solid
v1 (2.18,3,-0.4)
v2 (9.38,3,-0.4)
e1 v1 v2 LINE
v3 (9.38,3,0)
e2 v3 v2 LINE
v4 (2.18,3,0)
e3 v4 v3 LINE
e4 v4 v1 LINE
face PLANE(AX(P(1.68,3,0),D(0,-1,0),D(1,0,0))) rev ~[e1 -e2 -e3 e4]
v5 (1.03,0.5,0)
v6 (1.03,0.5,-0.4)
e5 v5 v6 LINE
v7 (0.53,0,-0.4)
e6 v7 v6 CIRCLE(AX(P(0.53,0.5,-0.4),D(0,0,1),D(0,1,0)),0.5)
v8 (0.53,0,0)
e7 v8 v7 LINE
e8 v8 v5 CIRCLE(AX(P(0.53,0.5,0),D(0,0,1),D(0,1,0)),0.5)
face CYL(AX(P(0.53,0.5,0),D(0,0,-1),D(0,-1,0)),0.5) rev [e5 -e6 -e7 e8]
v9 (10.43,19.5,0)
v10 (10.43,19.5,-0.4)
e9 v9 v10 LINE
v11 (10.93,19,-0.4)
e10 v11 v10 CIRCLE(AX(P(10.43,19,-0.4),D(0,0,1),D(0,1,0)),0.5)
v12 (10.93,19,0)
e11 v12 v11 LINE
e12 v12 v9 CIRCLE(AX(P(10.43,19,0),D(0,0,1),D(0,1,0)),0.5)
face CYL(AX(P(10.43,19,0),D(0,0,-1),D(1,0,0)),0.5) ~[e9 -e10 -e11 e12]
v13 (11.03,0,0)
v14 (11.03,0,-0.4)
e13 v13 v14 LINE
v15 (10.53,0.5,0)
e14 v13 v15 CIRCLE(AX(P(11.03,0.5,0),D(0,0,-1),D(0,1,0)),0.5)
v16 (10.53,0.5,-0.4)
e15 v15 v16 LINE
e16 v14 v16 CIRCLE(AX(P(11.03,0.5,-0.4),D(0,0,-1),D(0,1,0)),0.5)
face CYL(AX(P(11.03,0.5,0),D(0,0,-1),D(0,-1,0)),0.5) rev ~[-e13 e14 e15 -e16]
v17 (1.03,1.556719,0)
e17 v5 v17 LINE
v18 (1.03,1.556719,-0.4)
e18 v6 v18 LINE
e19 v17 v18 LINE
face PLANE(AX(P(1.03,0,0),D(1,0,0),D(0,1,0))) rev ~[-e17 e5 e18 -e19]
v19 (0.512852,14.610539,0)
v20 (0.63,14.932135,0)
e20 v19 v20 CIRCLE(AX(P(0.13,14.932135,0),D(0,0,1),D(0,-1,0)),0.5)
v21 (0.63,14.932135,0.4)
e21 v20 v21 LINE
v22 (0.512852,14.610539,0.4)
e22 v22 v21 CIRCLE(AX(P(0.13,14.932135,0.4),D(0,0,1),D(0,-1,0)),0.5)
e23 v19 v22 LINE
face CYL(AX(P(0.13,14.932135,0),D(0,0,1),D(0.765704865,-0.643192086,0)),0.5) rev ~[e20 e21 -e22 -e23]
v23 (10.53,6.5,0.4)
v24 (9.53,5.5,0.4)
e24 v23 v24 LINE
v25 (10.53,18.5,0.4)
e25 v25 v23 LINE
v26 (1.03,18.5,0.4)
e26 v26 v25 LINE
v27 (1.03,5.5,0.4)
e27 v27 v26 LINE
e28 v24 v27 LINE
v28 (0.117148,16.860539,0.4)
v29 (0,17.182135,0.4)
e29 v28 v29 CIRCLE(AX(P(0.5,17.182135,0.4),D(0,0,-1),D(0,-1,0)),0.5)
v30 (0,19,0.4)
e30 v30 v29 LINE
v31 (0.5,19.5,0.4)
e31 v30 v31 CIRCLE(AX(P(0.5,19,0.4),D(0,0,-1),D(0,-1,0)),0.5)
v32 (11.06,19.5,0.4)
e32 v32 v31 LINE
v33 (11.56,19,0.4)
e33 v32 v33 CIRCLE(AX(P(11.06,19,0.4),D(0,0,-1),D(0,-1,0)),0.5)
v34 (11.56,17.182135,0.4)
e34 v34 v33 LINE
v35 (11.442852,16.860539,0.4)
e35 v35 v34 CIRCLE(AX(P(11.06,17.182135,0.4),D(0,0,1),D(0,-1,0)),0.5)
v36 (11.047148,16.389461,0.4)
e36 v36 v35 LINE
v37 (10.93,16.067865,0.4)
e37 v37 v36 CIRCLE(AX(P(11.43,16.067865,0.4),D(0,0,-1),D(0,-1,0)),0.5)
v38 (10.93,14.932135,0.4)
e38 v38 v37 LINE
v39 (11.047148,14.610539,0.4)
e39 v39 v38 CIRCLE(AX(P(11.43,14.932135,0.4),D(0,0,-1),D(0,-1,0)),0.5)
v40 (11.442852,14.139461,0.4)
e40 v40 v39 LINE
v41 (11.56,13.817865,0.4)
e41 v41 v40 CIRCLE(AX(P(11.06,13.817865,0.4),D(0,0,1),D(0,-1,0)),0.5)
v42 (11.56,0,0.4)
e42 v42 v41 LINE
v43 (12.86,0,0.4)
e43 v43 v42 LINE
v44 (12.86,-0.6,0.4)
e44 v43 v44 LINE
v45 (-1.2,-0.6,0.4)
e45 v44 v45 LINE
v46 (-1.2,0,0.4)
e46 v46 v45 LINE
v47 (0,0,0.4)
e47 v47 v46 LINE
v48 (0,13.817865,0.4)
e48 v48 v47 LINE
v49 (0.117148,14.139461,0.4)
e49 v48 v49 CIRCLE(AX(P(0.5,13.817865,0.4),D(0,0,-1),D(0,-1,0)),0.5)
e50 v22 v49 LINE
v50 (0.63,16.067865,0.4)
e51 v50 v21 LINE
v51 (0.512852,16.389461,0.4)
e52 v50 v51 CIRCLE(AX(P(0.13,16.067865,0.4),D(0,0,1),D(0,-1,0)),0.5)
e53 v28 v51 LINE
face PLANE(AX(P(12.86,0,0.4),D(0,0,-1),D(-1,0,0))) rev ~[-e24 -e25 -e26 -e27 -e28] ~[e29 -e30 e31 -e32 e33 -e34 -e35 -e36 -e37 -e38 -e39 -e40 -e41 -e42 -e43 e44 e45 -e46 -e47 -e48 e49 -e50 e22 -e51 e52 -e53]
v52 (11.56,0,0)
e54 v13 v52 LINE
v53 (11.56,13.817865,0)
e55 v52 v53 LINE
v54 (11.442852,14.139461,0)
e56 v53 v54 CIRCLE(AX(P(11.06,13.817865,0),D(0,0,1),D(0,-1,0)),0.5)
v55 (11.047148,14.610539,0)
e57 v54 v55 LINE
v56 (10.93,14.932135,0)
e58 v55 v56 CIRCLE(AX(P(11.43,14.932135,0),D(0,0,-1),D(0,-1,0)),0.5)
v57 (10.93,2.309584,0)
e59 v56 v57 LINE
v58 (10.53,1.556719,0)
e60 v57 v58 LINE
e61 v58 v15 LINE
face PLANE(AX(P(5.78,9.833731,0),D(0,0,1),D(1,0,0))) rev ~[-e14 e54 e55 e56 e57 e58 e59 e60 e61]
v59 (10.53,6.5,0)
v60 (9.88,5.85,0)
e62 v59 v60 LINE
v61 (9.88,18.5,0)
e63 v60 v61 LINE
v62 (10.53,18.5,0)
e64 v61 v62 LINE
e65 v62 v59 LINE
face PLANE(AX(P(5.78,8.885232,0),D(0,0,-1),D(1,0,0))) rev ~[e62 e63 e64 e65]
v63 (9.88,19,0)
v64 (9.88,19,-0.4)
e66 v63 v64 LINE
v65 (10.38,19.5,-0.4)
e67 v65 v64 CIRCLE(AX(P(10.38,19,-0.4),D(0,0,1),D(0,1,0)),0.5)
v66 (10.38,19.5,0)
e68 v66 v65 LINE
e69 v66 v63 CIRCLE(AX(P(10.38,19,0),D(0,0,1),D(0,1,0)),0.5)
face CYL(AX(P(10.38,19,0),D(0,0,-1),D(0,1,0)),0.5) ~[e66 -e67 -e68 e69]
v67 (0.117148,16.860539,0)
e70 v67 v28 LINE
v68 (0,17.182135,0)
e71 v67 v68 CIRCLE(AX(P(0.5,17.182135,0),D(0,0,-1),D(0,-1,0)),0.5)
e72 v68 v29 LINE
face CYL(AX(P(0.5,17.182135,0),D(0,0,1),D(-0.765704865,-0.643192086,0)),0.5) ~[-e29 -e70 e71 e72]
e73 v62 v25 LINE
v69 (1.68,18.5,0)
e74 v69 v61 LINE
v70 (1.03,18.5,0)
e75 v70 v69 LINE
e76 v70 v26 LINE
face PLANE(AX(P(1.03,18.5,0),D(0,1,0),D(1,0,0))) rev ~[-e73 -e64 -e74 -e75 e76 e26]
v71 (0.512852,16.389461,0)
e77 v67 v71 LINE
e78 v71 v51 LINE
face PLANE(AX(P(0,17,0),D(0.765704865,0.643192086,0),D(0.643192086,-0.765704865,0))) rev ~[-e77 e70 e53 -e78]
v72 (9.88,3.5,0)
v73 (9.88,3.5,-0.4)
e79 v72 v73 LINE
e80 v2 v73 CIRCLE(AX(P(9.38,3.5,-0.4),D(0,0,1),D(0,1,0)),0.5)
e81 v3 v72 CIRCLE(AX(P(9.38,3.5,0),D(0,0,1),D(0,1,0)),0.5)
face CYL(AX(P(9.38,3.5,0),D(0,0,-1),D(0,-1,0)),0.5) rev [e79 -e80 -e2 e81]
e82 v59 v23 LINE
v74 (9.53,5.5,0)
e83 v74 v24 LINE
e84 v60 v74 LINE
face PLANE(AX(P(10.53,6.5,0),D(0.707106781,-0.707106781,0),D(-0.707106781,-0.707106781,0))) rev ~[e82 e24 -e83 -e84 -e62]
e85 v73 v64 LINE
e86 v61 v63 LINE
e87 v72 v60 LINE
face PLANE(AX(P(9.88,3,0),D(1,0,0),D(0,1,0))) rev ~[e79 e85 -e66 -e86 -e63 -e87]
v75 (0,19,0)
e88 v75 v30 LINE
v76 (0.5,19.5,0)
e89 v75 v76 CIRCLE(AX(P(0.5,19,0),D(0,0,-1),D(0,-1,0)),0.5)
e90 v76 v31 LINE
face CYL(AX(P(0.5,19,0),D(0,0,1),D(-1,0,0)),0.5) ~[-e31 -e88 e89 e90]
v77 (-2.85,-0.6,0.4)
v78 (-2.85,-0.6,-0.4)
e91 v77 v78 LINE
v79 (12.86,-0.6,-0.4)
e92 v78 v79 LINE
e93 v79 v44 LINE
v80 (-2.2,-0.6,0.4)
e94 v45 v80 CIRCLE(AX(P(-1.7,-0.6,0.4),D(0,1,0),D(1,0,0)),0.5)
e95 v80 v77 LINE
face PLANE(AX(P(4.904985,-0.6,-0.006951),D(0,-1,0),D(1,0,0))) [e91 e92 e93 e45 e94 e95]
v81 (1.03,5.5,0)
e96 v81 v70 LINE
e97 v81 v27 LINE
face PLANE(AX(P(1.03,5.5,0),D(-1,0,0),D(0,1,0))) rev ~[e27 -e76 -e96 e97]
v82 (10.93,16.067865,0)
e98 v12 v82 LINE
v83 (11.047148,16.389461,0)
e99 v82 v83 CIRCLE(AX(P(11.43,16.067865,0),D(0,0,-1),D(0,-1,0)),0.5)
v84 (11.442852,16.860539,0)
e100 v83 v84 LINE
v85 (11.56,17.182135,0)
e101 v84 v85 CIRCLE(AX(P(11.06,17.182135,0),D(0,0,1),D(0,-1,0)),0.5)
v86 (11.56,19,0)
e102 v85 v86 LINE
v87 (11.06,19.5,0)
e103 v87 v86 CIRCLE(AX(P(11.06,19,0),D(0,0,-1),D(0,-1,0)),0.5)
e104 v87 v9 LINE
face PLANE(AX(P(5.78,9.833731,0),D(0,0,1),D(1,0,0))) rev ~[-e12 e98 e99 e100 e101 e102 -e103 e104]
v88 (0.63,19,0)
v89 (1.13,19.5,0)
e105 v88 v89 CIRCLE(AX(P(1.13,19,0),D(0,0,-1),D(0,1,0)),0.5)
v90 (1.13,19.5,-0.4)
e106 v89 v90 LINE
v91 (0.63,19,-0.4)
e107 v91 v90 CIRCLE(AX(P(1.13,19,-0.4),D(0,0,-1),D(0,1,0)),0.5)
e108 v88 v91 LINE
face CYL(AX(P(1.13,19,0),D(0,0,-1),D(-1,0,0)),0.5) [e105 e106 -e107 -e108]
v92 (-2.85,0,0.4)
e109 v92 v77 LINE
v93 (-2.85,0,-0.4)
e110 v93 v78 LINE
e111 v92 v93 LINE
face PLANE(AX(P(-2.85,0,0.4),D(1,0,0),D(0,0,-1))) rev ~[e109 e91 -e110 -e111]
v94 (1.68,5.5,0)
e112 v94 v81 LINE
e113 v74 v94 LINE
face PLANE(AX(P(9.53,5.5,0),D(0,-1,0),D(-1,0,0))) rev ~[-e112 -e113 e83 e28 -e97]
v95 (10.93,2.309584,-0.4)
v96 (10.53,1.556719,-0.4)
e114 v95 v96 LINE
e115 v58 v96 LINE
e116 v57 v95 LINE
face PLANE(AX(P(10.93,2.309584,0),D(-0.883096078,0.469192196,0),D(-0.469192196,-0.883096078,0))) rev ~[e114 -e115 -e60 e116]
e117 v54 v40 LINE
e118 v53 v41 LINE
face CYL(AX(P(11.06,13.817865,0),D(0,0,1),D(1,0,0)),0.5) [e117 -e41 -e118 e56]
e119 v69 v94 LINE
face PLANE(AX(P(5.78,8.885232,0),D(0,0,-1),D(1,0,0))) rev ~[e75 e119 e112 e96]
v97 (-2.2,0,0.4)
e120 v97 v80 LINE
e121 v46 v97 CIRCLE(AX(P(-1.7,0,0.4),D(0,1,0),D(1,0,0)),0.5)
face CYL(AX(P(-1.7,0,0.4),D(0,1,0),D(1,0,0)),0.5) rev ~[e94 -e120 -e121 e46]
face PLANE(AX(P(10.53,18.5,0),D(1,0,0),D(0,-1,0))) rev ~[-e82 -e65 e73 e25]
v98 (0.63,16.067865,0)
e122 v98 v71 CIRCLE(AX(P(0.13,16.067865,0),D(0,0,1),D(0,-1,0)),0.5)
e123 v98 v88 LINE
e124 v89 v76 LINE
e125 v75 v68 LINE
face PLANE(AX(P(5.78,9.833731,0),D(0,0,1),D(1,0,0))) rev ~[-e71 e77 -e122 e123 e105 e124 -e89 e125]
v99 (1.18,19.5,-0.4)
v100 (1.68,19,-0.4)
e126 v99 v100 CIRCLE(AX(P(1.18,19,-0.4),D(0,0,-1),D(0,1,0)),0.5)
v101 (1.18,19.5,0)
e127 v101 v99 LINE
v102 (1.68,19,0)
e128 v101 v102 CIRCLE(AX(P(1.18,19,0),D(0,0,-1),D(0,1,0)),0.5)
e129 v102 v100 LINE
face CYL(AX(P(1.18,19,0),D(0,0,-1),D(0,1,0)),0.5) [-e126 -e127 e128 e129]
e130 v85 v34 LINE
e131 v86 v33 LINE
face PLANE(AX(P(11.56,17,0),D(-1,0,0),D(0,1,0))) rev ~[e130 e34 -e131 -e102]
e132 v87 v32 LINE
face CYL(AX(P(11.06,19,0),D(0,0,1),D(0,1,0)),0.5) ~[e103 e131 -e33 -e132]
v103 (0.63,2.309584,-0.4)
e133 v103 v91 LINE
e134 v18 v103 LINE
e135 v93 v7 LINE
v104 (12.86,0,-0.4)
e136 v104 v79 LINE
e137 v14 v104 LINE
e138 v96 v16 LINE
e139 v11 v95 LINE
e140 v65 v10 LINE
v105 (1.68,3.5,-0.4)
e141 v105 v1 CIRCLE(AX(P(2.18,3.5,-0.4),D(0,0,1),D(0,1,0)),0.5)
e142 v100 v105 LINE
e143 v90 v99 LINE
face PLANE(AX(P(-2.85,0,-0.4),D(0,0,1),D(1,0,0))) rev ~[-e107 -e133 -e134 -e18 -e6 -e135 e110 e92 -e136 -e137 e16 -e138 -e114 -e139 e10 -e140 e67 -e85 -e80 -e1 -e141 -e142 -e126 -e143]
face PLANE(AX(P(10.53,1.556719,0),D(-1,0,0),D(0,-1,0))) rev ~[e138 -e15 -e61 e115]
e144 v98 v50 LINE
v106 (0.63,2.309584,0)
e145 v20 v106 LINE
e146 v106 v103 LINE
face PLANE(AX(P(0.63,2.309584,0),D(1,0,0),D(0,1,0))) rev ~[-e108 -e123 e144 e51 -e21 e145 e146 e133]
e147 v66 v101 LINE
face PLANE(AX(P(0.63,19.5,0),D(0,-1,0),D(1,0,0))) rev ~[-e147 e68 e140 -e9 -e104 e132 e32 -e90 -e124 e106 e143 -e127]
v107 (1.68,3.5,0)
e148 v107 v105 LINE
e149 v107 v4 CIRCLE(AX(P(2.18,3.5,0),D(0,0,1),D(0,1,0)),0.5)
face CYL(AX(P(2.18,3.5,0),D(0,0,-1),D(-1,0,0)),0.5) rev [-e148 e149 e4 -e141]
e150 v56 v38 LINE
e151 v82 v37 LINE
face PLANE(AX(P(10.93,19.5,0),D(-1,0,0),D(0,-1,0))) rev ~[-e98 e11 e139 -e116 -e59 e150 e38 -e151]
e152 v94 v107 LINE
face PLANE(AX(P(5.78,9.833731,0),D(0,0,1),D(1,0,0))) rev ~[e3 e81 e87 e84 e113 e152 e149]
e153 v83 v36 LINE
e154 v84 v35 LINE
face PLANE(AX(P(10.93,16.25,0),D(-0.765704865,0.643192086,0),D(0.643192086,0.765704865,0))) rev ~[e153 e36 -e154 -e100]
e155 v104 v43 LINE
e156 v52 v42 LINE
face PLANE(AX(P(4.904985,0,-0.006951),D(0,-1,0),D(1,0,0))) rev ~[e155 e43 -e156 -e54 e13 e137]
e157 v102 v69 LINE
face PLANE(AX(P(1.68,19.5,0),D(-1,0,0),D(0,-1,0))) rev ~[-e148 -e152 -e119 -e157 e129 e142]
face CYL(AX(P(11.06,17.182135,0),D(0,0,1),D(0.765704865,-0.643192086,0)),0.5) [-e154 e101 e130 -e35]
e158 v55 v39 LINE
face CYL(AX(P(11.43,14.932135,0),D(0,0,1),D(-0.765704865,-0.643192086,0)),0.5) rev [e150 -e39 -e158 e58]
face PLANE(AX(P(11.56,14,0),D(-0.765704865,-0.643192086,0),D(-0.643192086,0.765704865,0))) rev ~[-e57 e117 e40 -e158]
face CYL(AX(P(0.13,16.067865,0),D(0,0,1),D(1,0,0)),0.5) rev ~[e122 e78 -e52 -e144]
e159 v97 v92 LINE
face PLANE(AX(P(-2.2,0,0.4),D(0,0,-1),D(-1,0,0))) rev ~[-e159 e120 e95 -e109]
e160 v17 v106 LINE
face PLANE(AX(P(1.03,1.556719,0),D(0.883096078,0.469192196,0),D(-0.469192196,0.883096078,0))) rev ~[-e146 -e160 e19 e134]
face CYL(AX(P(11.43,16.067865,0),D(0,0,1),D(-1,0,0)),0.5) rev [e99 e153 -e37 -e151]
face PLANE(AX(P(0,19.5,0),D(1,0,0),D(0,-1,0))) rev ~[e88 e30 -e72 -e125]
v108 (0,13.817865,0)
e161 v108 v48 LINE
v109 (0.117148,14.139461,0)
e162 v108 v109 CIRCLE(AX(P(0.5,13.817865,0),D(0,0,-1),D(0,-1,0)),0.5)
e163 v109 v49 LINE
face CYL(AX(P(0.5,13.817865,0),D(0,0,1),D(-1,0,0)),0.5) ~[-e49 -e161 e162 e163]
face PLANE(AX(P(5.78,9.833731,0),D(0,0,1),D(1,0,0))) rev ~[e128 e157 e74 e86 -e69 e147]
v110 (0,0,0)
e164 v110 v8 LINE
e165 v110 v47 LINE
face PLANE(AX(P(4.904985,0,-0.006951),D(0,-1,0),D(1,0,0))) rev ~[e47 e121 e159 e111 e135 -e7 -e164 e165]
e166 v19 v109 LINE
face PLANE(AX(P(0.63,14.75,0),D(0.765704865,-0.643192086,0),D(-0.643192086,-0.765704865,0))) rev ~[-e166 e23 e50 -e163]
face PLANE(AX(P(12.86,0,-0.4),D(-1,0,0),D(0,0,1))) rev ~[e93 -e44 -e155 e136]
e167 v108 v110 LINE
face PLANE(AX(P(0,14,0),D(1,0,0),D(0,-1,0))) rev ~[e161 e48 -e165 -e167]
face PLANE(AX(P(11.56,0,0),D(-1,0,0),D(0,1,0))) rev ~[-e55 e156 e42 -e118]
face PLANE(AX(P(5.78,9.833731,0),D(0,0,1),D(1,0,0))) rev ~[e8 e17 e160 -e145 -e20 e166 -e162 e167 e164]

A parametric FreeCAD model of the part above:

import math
import FreeCAD as App
import Part
import Sketcher

V = App.Vector
Q = App.Units.Quantity


def edges_at(feature, points):
    """Names of the edges that pass closest to the given points."""
    edges = feature.Shape.Edges
    near = lambda p: min(range(len(edges)), key=lambda i: edges[i].distToShape(Part.Vertex(*p))[0])
    return sorted({f"Edge{near(p) + 1}" for p in points})


def add_polygon(sketch, points):
    """Adds a closed chain of lines whose ends are joined by coincident constraints."""
    first, n = sketch.GeometryCount, len(points)
    for a, b in zip(points, points[1:] + points[:1]):
        sketch.addGeometry(Part.LineSegment(App.Vector(*a, 0), App.Vector(*b, 0)), False)
    for i in range(n):
        sketch.addConstraint(Sketcher.Constraint("Coincident", first + i, 2, first + (i + 1) % n, 1))

doc = App.newDocument("Part")
body = doc.addObject("PartDesign::Body", "Body")

# Sketch on XY plane
sketch1 = body.newObject("Sketcher::SketchObject", "Sketch")
sketch1.AttachmentSupport = (doc.getObject("XY_Plane"), [""])
sketch1.MapMode = "FlatFace"
add_polygon(sketch1, [(0, 14), (0, 0), (11.6, 0), (11.6, 14), (10.9, 14.8), (10.9, 16.2), (11.6, 17), (11.6, 19.5), (0, 19.5), (0, 17), (0.6, 16.2), (0.6, 14.8)])  # lines 0-11
add_polygon(sketch1, [(10.5, 18.5), (10.5, 6.5), (9.5, 5.5), (1, 5.5), (1, 18.5)])  # lines 12-16
sketch1.addConstraint([
    Sketcher.Constraint("Vertical", 0),
    Sketcher.Constraint("Horizontal", 1),
    Sketcher.Constraint("Vertical", 2),
    Sketcher.Constraint("Vertical", 4),
    Sketcher.Constraint("Vertical", 6),
    Sketcher.Constraint("Horizontal", 7),
    Sketcher.Constraint("Vertical", 8),
    Sketcher.Constraint("Vertical", 10),
    Sketcher.Constraint("Vertical", 12),
    Sketcher.Constraint("Horizontal", 14),
    Sketcher.Constraint("Vertical", 15),
    Sketcher.Constraint("Horizontal", 16),
    Sketcher.Constraint("Coincident", 0, 2, -1, 1),
    Sketcher.Constraint("PointOnObject", 7, 2, -2),
    Sketcher.Constraint("Parallel", 3, 9),
    Sketcher.Constraint("Parallel", 5, 11),
    Sketcher.Constraint("Horizontal", 5, 2, 8, 2),
    Sketcher.Constraint("Horizontal", 4, 2, 9, 2),
    Sketcher.Constraint("Horizontal", 3, 2, 10, 2),
    Sketcher.Constraint("Horizontal", 2, 2, 11, 2),
    Sketcher.Constraint("Vertical", 2, 2, 5, 2),
    Sketcher.Constraint("DistanceY", 0, 2, 0, 1, Q("14 mm")),
    Sketcher.Constraint("DistanceY", 12, 2, 12, 1, Q("12 mm")),
    Sketcher.Constraint("DistanceY", 15, 1, 15, 2, Q("13 mm")),
    Sketcher.Constraint("Angle", 13, Q("-135 deg")),
    Sketcher.Constraint("DistanceX", 14, 2, 14, 1, Q("8.5 mm")),
    Sketcher.Constraint("DistanceY", 4, 1, 4, 2, Q("1.5 mm")),
    Sketcher.Constraint("DistanceY", 6, 1, 6, 2, Q("2.5 mm")),
    Sketcher.Constraint("DistanceY", -1, 1, 5, 2, Q("17 mm")),
    Sketcher.Constraint("DistanceY", 15, 2, 7, 2, Q("1 mm")),
    Sketcher.Constraint("DistanceX", 1, 1, 1, 2, Q("11.56 mm")),
    Sketcher.Constraint("DistanceX", 9, 2, 4, 2, Q("10.3 mm")),
    Sketcher.Constraint("DistanceX", 12, 2, 3, 2, Q("0.4 mm")),
])
pad1 = body.newObject("PartDesign::Pad", "Pad")
pad1.Profile = sketch1
pad1.Length = 0.4

# Sketch on XY plane
sketch2 = body.newObject("Sketcher::SketchObject", "Sketch001")
sketch2.AttachmentSupport = (doc.getObject("XY_Plane"), [""])
sketch2.MapMode = "FlatFace"
add_polygon(sketch2, [(0.6, 2.3), (0.6, 19.5), (1.7, 19.5), (1.7, 3), (9.9, 3), (9.9, 19.5), (10.9, 19.5), (10.9, 2.3), (10.5, 1.6), (10.5, 0), (1, 0), (1, 1.6)])  # lines 0-11
sketch2.addConstraint([
    Sketcher.Constraint("Vertical", 0),
    Sketcher.Constraint("Horizontal", 1),
    Sketcher.Constraint("Vertical", 2),
    Sketcher.Constraint("Horizontal", 3),
    Sketcher.Constraint("Vertical", 4),
    Sketcher.Constraint("Horizontal", 5),
    Sketcher.Constraint("Vertical", 6),
    Sketcher.Constraint("Vertical", 8),
    Sketcher.Constraint("Horizontal", 9),
    Sketcher.Constraint("Vertical", 10),
    Sketcher.Constraint("PointOnObject", 8, 2, -1),
    Sketcher.Constraint("Horizontal", 1, 2, 4, 2),
    Sketcher.Constraint("Horizontal", 7, 2, 10, 2),
    Sketcher.Constraint("Horizontal", 6, 2, 11, 2),
    Sketcher.Constraint("Equal", 1, 5),
    Sketcher.Constraint("Equal", 7, 11),
    Sketcher.Constraint("DistanceX", 3, 1, 3, 2, Q("8.2 mm")),
    Sketcher.Constraint("DistanceX", 9, 2, 9, 1, Q("9.5 mm")),
    Sketcher.Constraint("DistanceY", 2, 2, 2, 1, Q("16.5 mm")),
    Sketcher.Constraint("DistanceY", -1, 1, 2, 2, Q("3 mm")),
    Sketcher.Constraint("DistanceX", 1, 1, 1, 2, Q("1.05 mm")),
    Sketcher.Constraint("DistanceX", -1, 1, 0, 2, Q("0.63 mm")),
    Sketcher.Constraint("DistanceY", 8, 2, 8, 1, Q("1.556719 mm")),
    Sketcher.Constraint("Distance", 7, Q("0.852529 mm")),
])
pad2 = body.newObject("PartDesign::Pad", "Pad001")
pad2.Profile = sketch2
pad2.Length = 0.4
pad2.Reversed = True

# Sketch on XZ plane
sketch3 = body.newObject("Sketcher::SketchObject", "Sketch002")
sketch3.AttachmentSupport = (doc.getObject("XZ_Plane"), [""])
sketch3.MapMode = "FlatFace"
sketch3.addGeometry([
    Part.LineSegment(V(-2.2, 0.4, 0), V(-2.9, 0.4, 0)),  # 0
    Part.LineSegment(V(-2.9, 0.4, 0), V(-2.9, -0.4, 0)),  # 1
    Part.LineSegment(V(-2.9, -0.4, 0), V(12.9, -0.4, 0)),  # 2
    Part.LineSegment(V(12.9, -0.4, 0), V(12.9, 0.4, 0)),  # 3
    Part.LineSegment(V(12.9, 0.4, 0), V(-1.2, 0.4, 0)),  # 4
    Part.ArcOfCircle(Part.Circle(V(-1.7, 0.4, 0), V(0, 0, 1), 0.5), math.radians(180), math.radians(360)),  # 5
], False)
sketch3.addConstraint([
    Sketcher.Constraint("Coincident", 0, 2, 1, 1),
    Sketcher.Constraint("Coincident", 1, 2, 2, 1),
    Sketcher.Constraint("Coincident", 2, 2, 3, 1),
    Sketcher.Constraint("Coincident", 3, 2, 4, 1),
    Sketcher.Constraint("Coincident", 4, 2, 5, 2),
    Sketcher.Constraint("Coincident", 5, 1, 0, 1),
    Sketcher.Constraint("Horizontal", 0),
    Sketcher.Constraint("Vertical", 1),
    Sketcher.Constraint("Horizontal", 2),
    Sketcher.Constraint("Vertical", 3),
    Sketcher.Constraint("Horizontal", 4),
    Sketcher.Constraint("Horizontal", 5, 3, 0, 2),
    Sketcher.Constraint("Horizontal", 0, 2, 3, 2),
    Sketcher.Constraint("Radius", 5, Q("0.5 mm")),
    Sketcher.Constraint("DistanceY", 1, 2, 1, 1, Q("0.8 mm")),
    Sketcher.Constraint("DistanceX", 0, 2, 0, 1, Q("0.65 mm")),
    Sketcher.Constraint("DistanceX", 2, 1, 2, 2, Q("15.71 mm")),
    Sketcher.Constraint("DistanceX", 5, 3, -1, 1, Q("1.7 mm")),
    Sketcher.Constraint("DistanceY", -1, 1, 5, 3, Q("0.4 mm")),
])
pad3 = body.newObject("PartDesign::Pad", "Pad002")
pad3.Profile = sketch3
pad3.Length = 0.6
doc.recompute()

fillet = body.newObject("PartDesign::Fillet", "Fillet")
fillet.Base = (pad3, edges_at(pad3, [
    (11.56, 19.5, 0.2),
    (11.56, 17, 0.2),
    (10.93, 16.25, 0.2),
    (10.93, 14.75, 0.2),
    (11.56, 14, 0.2),
    (0, 19.5, 0.2),
    (0, 17, 0.2),
    (0.63, 16.25, 0.2),
    (0, 14, 0.2),
    (0.63, 14.75, 0.2),
    (9.88, 3, -0.2),
    (1.68, 3, -0.2),
    (10.93, 19.5, -0.2),
    (9.88, 19.5, -0.2),
    (1.68, 19.5, -0.2),
    (0.63, 19.5, -0.2),
    (10.53, 0, -0.2),
    (1.03, 0, -0.2),
]))
fillet.Radius = 0.5

doc.recompute()
